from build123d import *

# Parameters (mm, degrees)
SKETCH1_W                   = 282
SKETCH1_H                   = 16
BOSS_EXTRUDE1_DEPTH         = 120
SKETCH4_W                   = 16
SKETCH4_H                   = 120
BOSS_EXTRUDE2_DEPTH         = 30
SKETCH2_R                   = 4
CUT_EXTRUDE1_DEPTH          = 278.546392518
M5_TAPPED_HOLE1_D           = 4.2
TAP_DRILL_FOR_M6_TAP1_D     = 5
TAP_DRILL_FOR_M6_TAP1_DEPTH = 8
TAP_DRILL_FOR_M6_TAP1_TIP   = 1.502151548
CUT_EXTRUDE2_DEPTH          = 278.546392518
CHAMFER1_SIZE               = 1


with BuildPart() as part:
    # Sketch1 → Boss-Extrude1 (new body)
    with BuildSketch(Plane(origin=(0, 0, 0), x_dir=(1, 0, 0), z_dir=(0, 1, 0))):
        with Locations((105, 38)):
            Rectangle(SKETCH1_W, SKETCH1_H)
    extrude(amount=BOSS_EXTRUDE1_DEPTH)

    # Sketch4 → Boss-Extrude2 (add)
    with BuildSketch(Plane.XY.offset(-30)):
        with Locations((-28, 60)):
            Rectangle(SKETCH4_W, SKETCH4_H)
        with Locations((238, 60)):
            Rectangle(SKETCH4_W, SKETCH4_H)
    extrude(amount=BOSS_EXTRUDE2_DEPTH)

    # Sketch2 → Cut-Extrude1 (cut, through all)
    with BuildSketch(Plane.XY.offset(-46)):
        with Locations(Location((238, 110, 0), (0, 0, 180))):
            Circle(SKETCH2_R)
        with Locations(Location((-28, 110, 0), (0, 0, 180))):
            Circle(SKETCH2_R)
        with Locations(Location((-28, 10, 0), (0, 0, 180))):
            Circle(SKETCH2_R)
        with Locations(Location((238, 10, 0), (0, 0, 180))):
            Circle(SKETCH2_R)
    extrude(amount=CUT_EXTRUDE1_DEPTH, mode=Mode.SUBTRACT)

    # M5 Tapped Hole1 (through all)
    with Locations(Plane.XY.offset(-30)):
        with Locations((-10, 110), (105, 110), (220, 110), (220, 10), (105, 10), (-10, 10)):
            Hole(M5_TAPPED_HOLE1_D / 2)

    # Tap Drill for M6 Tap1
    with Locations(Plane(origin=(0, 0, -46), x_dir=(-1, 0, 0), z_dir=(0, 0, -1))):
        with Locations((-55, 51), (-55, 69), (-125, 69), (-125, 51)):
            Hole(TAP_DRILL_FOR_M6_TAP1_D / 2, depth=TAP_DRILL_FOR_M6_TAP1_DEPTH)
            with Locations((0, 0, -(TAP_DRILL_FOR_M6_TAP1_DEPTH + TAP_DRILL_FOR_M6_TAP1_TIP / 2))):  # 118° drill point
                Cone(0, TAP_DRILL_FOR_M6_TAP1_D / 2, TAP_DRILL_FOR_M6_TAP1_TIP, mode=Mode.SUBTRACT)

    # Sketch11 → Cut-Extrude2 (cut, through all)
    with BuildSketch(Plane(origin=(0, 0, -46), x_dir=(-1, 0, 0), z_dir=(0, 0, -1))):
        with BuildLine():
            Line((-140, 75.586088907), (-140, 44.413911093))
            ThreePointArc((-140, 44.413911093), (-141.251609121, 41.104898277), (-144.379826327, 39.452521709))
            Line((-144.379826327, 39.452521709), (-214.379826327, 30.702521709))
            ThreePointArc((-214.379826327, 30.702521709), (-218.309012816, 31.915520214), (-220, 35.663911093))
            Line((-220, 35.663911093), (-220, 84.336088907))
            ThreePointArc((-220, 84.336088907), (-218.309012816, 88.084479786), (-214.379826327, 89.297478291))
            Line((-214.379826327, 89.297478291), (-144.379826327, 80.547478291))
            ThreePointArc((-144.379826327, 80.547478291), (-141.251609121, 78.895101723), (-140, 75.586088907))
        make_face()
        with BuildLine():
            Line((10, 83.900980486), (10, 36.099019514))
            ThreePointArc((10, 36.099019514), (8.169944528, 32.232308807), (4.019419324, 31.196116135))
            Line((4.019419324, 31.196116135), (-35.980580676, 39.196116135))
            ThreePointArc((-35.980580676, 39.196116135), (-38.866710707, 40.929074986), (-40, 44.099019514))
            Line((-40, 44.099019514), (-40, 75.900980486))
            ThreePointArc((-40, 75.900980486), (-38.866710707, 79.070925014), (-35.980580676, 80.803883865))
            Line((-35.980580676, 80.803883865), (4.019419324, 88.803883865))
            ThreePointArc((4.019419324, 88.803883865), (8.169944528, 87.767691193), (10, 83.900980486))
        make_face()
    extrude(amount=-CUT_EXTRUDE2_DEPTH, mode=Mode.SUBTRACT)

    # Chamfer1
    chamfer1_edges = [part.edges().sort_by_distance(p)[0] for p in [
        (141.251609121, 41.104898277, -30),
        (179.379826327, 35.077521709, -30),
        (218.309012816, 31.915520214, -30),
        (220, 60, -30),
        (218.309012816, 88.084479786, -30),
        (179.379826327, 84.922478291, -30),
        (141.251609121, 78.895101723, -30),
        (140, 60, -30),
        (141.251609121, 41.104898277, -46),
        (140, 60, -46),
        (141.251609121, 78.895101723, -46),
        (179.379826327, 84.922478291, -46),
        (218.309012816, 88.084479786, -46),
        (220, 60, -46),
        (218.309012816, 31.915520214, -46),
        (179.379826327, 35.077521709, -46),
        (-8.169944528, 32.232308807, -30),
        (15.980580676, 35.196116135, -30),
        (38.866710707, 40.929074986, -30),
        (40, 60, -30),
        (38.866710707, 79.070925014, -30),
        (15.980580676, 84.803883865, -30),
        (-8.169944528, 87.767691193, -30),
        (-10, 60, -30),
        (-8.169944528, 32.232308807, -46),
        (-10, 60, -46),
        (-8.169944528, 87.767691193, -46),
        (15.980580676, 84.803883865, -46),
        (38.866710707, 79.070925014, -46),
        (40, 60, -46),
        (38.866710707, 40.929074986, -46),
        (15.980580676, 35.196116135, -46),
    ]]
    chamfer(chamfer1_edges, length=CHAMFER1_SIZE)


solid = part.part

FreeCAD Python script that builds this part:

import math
import FreeCAD as App
import Part
import Sketcher

V = App.Vector
Q = App.Units.Quantity


def edges_at(feature, points):
    """Names of the edges that pass closest to the given points."""
    edges = feature.Shape.Edges
    near = lambda p: min(range(len(edges)), key=lambda i: edges[i].distToShape(Part.Vertex(*p))[0])
    return sorted({f"Edge{near(p) + 1}" for p in points})


def add_polygon(sketch, points):
    """Adds a closed chain of lines whose ends are joined by coincident constraints."""
    first, n = sketch.GeometryCount, len(points)
    for a, b in zip(points, points[1:] + points[:1]):
        sketch.addGeometry(Part.LineSegment(App.Vector(*a, 0), App.Vector(*b, 0)), False)
    for i in range(n):
        sketch.addConstraint(Sketcher.Constraint("Coincident", first + i, 2, first + (i + 1) % n, 1))

doc = App.newDocument("Part")
body = doc.addObject("PartDesign::Body", "Body")

# Sketch on XZ plane
sketch1 = body.newObject("Sketcher::SketchObject", "Sketch")
sketch1.AttachmentSupport = (doc.getObject("XZ_Plane"), [""])
sketch1.MapMode = "FlatFace"
add_polygon(sketch1, [(-36, -46), (-36, -30), (246, -30), (246, -46)])  # lines 0-3
sketch1.addConstraint(Sketcher.Constraint("Vertical", 0))
sketch1.addConstraint(Sketcher.Constraint("Horizontal", 1))
sketch1.addConstraint(Sketcher.Constraint("Vertical", 2))
sketch1.addConstraint(Sketcher.Constraint("Horizontal", 3))
sketch1.addConstraint(Sketcher.Constraint("DistanceX", 1, 1, 1, 2, Q("282 mm")))
sketch1.addConstraint(Sketcher.Constraint("DistanceY", 0, 1, 0, 2, Q("16 mm")))
sketch1.addConstraint(Sketcher.Constraint("DistanceX", 0, 2, -1, 1, Q("36 mm")))
sketch1.addConstraint(Sketcher.Constraint("DistanceY", 0, 2, -1, 1, Q("30 mm")))
pad1 = body.newObject("PartDesign::Pad", "Pad")
pad1.Profile = sketch1
pad1.Length = 120
pad1.Reversed = True

# Sketch on XY plane
sketch2 = body.newObject("Sketcher::SketchObject", "Sketch001")
sketch2.AttachmentSupport = (doc.getObject("XY_Plane"), [""])
sketch2.MapMode = "FlatFace"
sketch2.AttachmentOffset = App.Placement(V(0, 0, -30), App.Rotation())
add_polygon(sketch2, [(-36, 120), (-36, 0), (-20, 0), (-20, 120)])  # lines 0-3
add_polygon(sketch2, [(230, 120), (230, 0), (246, 0), (246, 120)])  # lines 4-7
sketch2.addConstraint(Sketcher.Constraint("Vertical", 0))
sketch2.addConstraint(Sketcher.Constraint("Horizontal", 1))
sketch2.addConstraint(Sketcher.Constraint("Vertical", 2))
sketch2.addConstraint(Sketcher.Constraint("Horizontal", 3))
sketch2.addConstraint(Sketcher.Constraint("Vertical", 4))
sketch2.addConstraint(Sketcher.Constraint("Horizontal", 5))
sketch2.addConstraint(Sketcher.Constraint("Vertical", 6))
sketch2.addConstraint(Sketcher.Constraint("Horizontal", 7))
sketch2.addConstraint(Sketcher.Constraint("PointOnObject", 0, 2, -1))
sketch2.addConstraint(Sketcher.Constraint("PointOnObject", 4, 2, -1))
sketch2.addConstraint(Sketcher.Constraint("Horizontal", 3, 2, 6, 2))
sketch2.addConstraint(Sketcher.Constraint("Equal", 3, 5))
sketch2.addConstraint(Sketcher.Constraint("DistanceX", 1, 1, 1, 2, Q("16 mm")))
sketch2.addConstraint(Sketcher.Constraint("DistanceY", 0, 2, 0, 1, Q("120 mm")))
sketch2.addConstraint(Sketcher.Constraint("DistanceX", 0, 2, -1, 1, Q("36 mm")))
sketch2.addConstraint(Sketcher.Constraint("DistanceX", -1, 1, 4, 2, Q("230 mm")))
pad2 = body.newObject("PartDesign::Pad", "Pad001")
pad2.Profile = sketch2
pad2.Length = 30

# Sketch on XY plane
sketch3 = body.newObject("Sketcher::SketchObject", "Sketch002")
sketch3.AttachmentSupport = (doc.getObject("XY_Plane"), [""])
sketch3.MapMode = "FlatFace"
sketch3.AttachmentOffset = App.Placement(V(0, 0, -46), App.Rotation())
sketch3.addGeometry(Part.Circle(V(238, 110, 0), V(0, 0, 1), 4), False)
sketch3.addGeometry(Part.Circle(V(-28, 110, 0), V(0, 0, 1), 4), False)
sketch3.addGeometry(Part.Circle(V(-28, 10, 0), V(0, 0, 1), 4), False)
sketch3.addGeometry(Part.Circle(V(238, 10, 0), V(0, 0, 1), 4), False)
sketch3.addConstraint(Sketcher.Constraint("Equal", 0, 1))
sketch3.addConstraint(Sketcher.Constraint("Equal", 1, 2))
sketch3.addConstraint(Sketcher.Constraint("Equal", 2, 3))
sketch3.addConstraint(Sketcher.Constraint("Horizontal", 0, 3, 1, 3))
sketch3.addConstraint(Sketcher.Constraint("Horizontal", 2, 3, 3, 3))
sketch3.addConstraint(Sketcher.Constraint("Vertical", 1, 3, 2, 3))
sketch3.addConstraint(Sketcher.Constraint("Vertical", 0, 3, 3, 3))
sketch3.addConstraint(Sketcher.Constraint("Diameter", 0, Q("8 mm")))
sketch3.addConstraint(Sketcher.Constraint("DistanceX", -1, 1, 0, 3, Q("238 mm")))
sketch3.addConstraint(Sketcher.Constraint("DistanceY", -1, 1, 0, 3, Q("110 mm")))
sketch3.addConstraint(Sketcher.Constraint("DistanceX", 1, 3, -1, 1, Q("28 mm")))
sketch3.addConstraint(Sketcher.Constraint("DistanceY", -1, 1, 2, 3, Q("10 mm")))
pocket1 = body.newObject("PartDesign::Pocket", "Pocket")
pocket1.Profile = sketch3
pocket1.Type = "ThroughAll"
pocket1.Reversed = True

# Sketch on XY plane
sketch4 = body.newObject("Sketcher::SketchObject", "Sketch003")
sketch4.AttachmentSupport = (doc.getObject("XY_Plane"), [""])
sketch4.MapMode = "FlatFace"
sketch4.AttachmentOffset = App.Placement(V(0, 0, -30), App.Rotation())
sketch4.addGeometry(Part.Circle(V(-10, 110, 0), V(0, 0, 1), 2.1), False)
sketch4.addGeometry(Part.Circle(V(105, 110, 0), V(0, 0, 1), 2.1), False)
sketch4.addGeometry(Part.Circle(V(220, 110, 0), V(0, 0, 1), 2.1), False)
sketch4.addGeometry(Part.Circle(V(220, 10, 0), V(0, 0, 1), 2.1), False)
sketch4.addGeometry(Part.Circle(V(105, 10, 0), V(0, 0, 1), 2.1), False)
sketch4.addGeometry(Part.Circle(V(-10, 10, 0), V(0, 0, 1), 2.1), False)
sketch4.addConstraint(Sketcher.Constraint("Equal", 0, 1))
sketch4.addConstraint(Sketcher.Constraint("Equal", 1, 2))
sketch4.addConstraint(Sketcher.Constraint("Equal", 2, 3))
sketch4.addConstraint(Sketcher.Constraint("Equal", 3, 4))
sketch4.addConstraint(Sketcher.Constraint("Equal", 4, 5))
sketch4.addConstraint(Sketcher.Constraint("Horizontal", 0, 3, 1, 3))
sketch4.addConstraint(Sketcher.Constraint("Horizontal", 1, 3, 2, 3))
sketch4.addConstraint(Sketcher.Constraint("Horizontal", 3, 3, 4, 3))
sketch4.addConstraint(Sketcher.Constraint("Horizontal", 4, 3, 5, 3))
sketch4.addConstraint(Sketcher.Constraint("Vertical", 2, 3, 3, 3))
sketch4.addConstraint(Sketcher.Constraint("Vertical", 1, 3, 4, 3))
sketch4.addConstraint(Sketcher.Constraint("Vertical", 0, 3, 5, 3))
sketch4.addConstraint(Sketcher.Constraint("Diameter", 0, Q("4.2 mm")))
sketch4.addConstraint(Sketcher.Constraint("DistanceX", 0, 3, -1, 1, Q("10 mm")))
sketch4.addConstraint(Sketcher.Constraint("DistanceY", -1, 1, 0, 3, Q("110 mm")))
sketch4.addConstraint(Sketcher.Constraint("DistanceX", -1, 1, 1, 3, Q("105 mm")))
sketch4.addConstraint(Sketcher.Constraint("DistanceX", -1, 1, 2, 3, Q("220 mm")))
sketch4.addConstraint(Sketcher.Constraint("DistanceY", -1, 1, 3, 3, Q("10 mm")))
doc.recompute()
hole = body.newObject("PartDesign::Hole", "Hole")
hole.Profile = sketch4
hole.ThreadType = "None"
hole.Diameter = 4.2
hole.DepthType = "ThroughAll"

# Sketch on XY plane
sketch5 = body.newObject("Sketcher::SketchObject", "Sketch004")
sketch5.AttachmentSupport = (doc.getObject("XY_Plane"), [""])
sketch5.MapMode = "FlatFace"
sketch5.AttachmentOffset = App.Placement(V(0, 0, -46), App.Rotation())
sketch5.addGeometry(Part.Circle(V(55, 51, 0), V(0, 0, 1), 2.5), False)
sketch5.addGeometry(Part.Circle(V(55, 69, 0), V(0, 0, 1), 2.5), False)
sketch5.addGeometry(Part.Circle(V(125, 69, 0), V(0, 0, 1), 2.5), False)
sketch5.addGeometry(Part.Circle(V(125, 51, 0), V(0, 0, 1), 2.5), False)
sketch5.addConstraint(Sketcher.Constraint("Equal", 0, 1))
sketch5.addConstraint(Sketcher.Constraint("Equal", 1, 2))
sketch5.addConstraint(Sketcher.Constraint("Equal", 2, 3))
sketch5.addConstraint(Sketcher.Constraint("Horizontal", 1, 3, 2, 3))
sketch5.addConstraint(Sketcher.Constraint("Horizontal", 0, 3, 3, 3))
sketch5.addConstraint(Sketcher.Constraint("Vertical", 0, 3, 1, 3))
sketch5.addConstraint(Sketcher.Constraint("Vertical", 2, 3, 3, 3))
sketch5.addConstraint(Sketcher.Constraint("Diameter", 0, Q("5 mm")))
sketch5.addConstraint(Sketcher.Constraint("DistanceX", -1, 1, 0, 3, Q("55 mm")))
sketch5.addConstraint(Sketcher.Constraint("DistanceY", -1, 1, 0, 3, Q("51 mm")))
sketch5.addConstraint(Sketcher.Constraint("DistanceY", -1, 1, 1, 3, Q("69 mm")))
sketch5.addConstraint(Sketcher.Constraint("DistanceX", -1, 1, 2, 3, Q("125 mm")))
doc.recompute()
hole2 = body.newObject("PartDesign::Hole", "Hole001")
hole2.Profile = sketch5
hole2.ThreadType = "None"
hole2.Diameter = 5
hole2.DepthType = "Dimension"
hole2.Depth = 8
hole2.DrillPoint = "Angled"
hole2.DrillPointAngle = 118
hole2.Reversed = True

# Sketch on XY plane
sketch6 = body.newObject("Sketcher::SketchObject", "Sketch005")
sketch6.AttachmentSupport = (doc.getObject("XY_Plane"), [""])
sketch6.MapMode = "FlatFace"
sketch6.AttachmentOffset = App.Placement(V(0, 0, -46), App.Rotation())
sketch6.addGeometry(Part.LineSegment(V(140, 44, 0), V(140, 76, 0)), False)
sketch6.addGeometry(Part.ArcOfCircle(Part.Circle(V(145, 76, 0), V(0, 0, 1), 5), math.radians(97), math.radians(180)), False)
sketch6.addGeometry(Part.LineSegment(V(144, 81, 0), V(214, 89, 0)), False)
sketch6.addGeometry(Part.ArcOfCircle(Part.Circle(V(215, 84, 0), V(0, 0, 1), 5), math.radians(0), math.radians(97)), False)
sketch6.addGeometry(Part.LineSegment(V(220, 84, 0), V(220, 36, 0)), False)
sketch6.addGeometry(Part.ArcOfCircle(Part.Circle(V(215, 36, 0), V(0, 0, 1), 5), math.radians(-97), math.radians(0)), False)
sketch6.addGeometry(Part.LineSegment(V(214, 31, 0), V(144, 39, 0)), False)
sketch6.addGeometry(Part.ArcOfCircle(Part.Circle(V(145, 44, 0), V(0, 0, 1), 5), math.radians(-180), math.radians(-97)), False)
sketch6.addGeometry(Part.LineSegment(V(-10, 36, 0), V(-10, 84, 0)), False)
sketch6.addGeometry(Part.ArcOfCircle(Part.Circle(V(-5, 84, 0), V(0, 0, 1), 5), math.radians(79), math.radians(180)), False)
sketch6.addGeometry(Part.LineSegment(V(-4, 89, 0), V(36, 81, 0)), False)
sketch6.addGeometry(Part.ArcOfCircle(Part.Circle(V(35, 76, 0), V(0, 0, 1), 5), math.radians(0), math.radians(79)), False)
sketch6.addGeometry(Part.LineSegment(V(40, 76, 0), V(40, 44, 0)), False)
sketch6.addGeometry(Part.ArcOfCircle(Part.Circle(V(35, 44, 0), V(0, 0, 1), 5), math.radians(-79), math.radians(0)), False)
sketch6.addGeometry(Part.LineSegment(V(36, 39, 0), V(-4, 31, 0)), False)
sketch6.addGeometry(Part.ArcOfCircle(Part.Circle(V(-5, 36, 0), V(0, 0, 1), 5), math.radians(180), math.radians(281)), False)
sketch6.addConstraint(Sketcher.Constraint("Tangent", 0, 2, 1, 2))
sketch6.addConstraint(Sketcher.Constraint("Tangent", 1, 1, 2, 1))
sketch6.addConstraint(Sketcher.Constraint("Tangent", 2, 2, 3, 2))
sketch6.addConstraint(Sketcher.Constraint("Tangent", 3, 1, 4, 1))
sketch6.addConstraint(Sketcher.Constraint("Tangent", 4, 2, 5, 2))
sketch6.addConstraint(Sketcher.Constraint("Tangent", 5, 1, 6, 1))
sketch6.addConstraint(Sketcher.Constraint("Tangent", 6, 2, 7, 2))
sketch6.addConstraint(Sketcher.Constraint("Tangent", 7, 1, 0, 1))
sketch6.addConstraint(Sketcher.Constraint("Tangent", 8, 2, 9, 2))
sketch6.addConstraint(Sketcher.Constraint("Tangent", 9, 1, 10, 1))
sketch6.addConstraint(Sketcher.Constraint("Tangent", 10, 2, 11, 2))
sketch6.addConstraint(Sketcher.Constraint("Tangent", 11, 1, 12, 1))
sketch6.addConstraint(Sketcher.Constraint("Tangent", 12, 2, 13, 2))
sketch6.addConstraint(Sketcher.Constraint("Tangent", 13, 1, 14, 1))
sketch6.addConstraint(Sketcher.Constraint("Tangent", 14, 2, 15, 2))
sketch6.addConstraint(Sketcher.Constraint("Tangent", 15, 1, 8, 1))
sketch6.addConstraint(Sketcher.Constraint("Vertical", 0))
sketch6.addConstraint(Sketcher.Constraint("Vertical", 4))
sketch6.addConstraint(Sketcher.Constraint("Vertical", 8))
sketch6.addConstraint(Sketcher.Constraint("Vertical", 12))
sketch6.addConstraint(Sketcher.Constraint("Equal", 1, 3))
sketch6.addConstraint(Sketcher.Constraint("Equal", 3, 5))
sketch6.addConstraint(Sketcher.Constraint("Equal", 5, 7))
sketch6.addConstraint(Sketcher.Constraint("Equal", 7, 9))
sketch6.addConstraint(Sketcher.Constraint("Equal", 9, 11))
sketch6.addConstraint(Sketcher.Constraint("Equal", 11, 13))
sketch6.addConstraint(Sketcher.Constraint("Equal", 13, 15))
sketch6.addConstraint(Sketcher.Constraint("Vertical", 2, 2, 5, 1))
sketch6.addConstraint(Sketcher.Constraint("Vertical", 10, 2, 13, 1))
sketch6.addConstraint(Sketcher.Constraint("Radius", 1, Q("5 mm")))
sketch6.addConstraint(Sketcher.Constraint("DistanceX", -1, 1, 1, 3, Q("145 mm")))
sketch6.addConstraint(Sketcher.Constraint("DistanceX", -1, 1, 3, 3, Q("215 mm")))
sketch6.addConstraint(Sketcher.Constraint("DistanceX", 9, 3, -1, 1, Q("5 mm")))
sketch6.addConstraint(Sketcher.Constraint("DistanceX", -1, 1, 11, 3, Q("35 mm")))
sketch6.addConstraint(Sketcher.Constraint("DistanceY", 11, 3, 9, 3, Q("8 mm")))
sketch6.addConstraint(Sketcher.Constraint("DistanceY", 1, 3, 3, 3, Q("8.75 mm")))
sketch6.addConstraint(Sketcher.Constraint("DistanceY", 8, 1, 8, 2, Q("47.801961 mm")))
sketch6.addConstraint(Sketcher.Constraint("DistanceY", 0, 1, 0, 2, Q("31.172178 mm")))
sketch6.addConstraint(Sketcher.Constraint("DistanceY", -1, 1, 1, 3, Q("75.586089 mm")))
sketch6.addConstraint(Sketcher.Constraint("DistanceY", -1, 1, 9, 3, Q("83.90098 mm")))
pocket2 = body.newObject("PartDesign::Pocket", "Pocket001")
pocket2.Profile = sketch6
pocket2.Type = "ThroughAll"
pocket2.Reversed = True
doc.recompute()

chamfer = body.newObject("PartDesign::Chamfer", "Chamfer")
chamfer.Base = (pocket2, edges_at(pocket2, [
    (141.252, 41.105, -30),
    (179.38, 35.078, -30),
    (218.309, 31.916, -30),
    (220, 60, -30),
    (218.309, 88.084, -30),
    (179.38, 84.922, -30),
    (141.252, 78.895, -30),
    (140, 60, -30),
    (141.252, 41.105, -46),
    (140, 60, -46),
    (141.252, 78.895, -46),
    (179.38, 84.922, -46),
    (218.309, 88.084, -46),
    (220, 60, -46),
    (218.309, 31.916, -46),
    (179.38, 35.078, -46),
    (-8.17, 32.232, -30),
    (15.981, 35.196, -30),
    (38.867, 40.929, -30),
    (40, 60, -30),
    (38.867, 79.071, -30),
    (15.981, 84.804, -30),
    (-8.17, 87.768, -30),
    (-10, 60, -30),
    (-8.17, 32.232, -46),
    (-10, 60, -46),
    (-8.17, 87.768, -46),
    (15.981, 84.804, -46),
    (38.867, 79.071, -46),
    (40, 60, -46),
    (38.867, 40.929, -46),
    (15.981, 35.196, -46),
]))
chamfer.Size = 1

doc.recompute()
